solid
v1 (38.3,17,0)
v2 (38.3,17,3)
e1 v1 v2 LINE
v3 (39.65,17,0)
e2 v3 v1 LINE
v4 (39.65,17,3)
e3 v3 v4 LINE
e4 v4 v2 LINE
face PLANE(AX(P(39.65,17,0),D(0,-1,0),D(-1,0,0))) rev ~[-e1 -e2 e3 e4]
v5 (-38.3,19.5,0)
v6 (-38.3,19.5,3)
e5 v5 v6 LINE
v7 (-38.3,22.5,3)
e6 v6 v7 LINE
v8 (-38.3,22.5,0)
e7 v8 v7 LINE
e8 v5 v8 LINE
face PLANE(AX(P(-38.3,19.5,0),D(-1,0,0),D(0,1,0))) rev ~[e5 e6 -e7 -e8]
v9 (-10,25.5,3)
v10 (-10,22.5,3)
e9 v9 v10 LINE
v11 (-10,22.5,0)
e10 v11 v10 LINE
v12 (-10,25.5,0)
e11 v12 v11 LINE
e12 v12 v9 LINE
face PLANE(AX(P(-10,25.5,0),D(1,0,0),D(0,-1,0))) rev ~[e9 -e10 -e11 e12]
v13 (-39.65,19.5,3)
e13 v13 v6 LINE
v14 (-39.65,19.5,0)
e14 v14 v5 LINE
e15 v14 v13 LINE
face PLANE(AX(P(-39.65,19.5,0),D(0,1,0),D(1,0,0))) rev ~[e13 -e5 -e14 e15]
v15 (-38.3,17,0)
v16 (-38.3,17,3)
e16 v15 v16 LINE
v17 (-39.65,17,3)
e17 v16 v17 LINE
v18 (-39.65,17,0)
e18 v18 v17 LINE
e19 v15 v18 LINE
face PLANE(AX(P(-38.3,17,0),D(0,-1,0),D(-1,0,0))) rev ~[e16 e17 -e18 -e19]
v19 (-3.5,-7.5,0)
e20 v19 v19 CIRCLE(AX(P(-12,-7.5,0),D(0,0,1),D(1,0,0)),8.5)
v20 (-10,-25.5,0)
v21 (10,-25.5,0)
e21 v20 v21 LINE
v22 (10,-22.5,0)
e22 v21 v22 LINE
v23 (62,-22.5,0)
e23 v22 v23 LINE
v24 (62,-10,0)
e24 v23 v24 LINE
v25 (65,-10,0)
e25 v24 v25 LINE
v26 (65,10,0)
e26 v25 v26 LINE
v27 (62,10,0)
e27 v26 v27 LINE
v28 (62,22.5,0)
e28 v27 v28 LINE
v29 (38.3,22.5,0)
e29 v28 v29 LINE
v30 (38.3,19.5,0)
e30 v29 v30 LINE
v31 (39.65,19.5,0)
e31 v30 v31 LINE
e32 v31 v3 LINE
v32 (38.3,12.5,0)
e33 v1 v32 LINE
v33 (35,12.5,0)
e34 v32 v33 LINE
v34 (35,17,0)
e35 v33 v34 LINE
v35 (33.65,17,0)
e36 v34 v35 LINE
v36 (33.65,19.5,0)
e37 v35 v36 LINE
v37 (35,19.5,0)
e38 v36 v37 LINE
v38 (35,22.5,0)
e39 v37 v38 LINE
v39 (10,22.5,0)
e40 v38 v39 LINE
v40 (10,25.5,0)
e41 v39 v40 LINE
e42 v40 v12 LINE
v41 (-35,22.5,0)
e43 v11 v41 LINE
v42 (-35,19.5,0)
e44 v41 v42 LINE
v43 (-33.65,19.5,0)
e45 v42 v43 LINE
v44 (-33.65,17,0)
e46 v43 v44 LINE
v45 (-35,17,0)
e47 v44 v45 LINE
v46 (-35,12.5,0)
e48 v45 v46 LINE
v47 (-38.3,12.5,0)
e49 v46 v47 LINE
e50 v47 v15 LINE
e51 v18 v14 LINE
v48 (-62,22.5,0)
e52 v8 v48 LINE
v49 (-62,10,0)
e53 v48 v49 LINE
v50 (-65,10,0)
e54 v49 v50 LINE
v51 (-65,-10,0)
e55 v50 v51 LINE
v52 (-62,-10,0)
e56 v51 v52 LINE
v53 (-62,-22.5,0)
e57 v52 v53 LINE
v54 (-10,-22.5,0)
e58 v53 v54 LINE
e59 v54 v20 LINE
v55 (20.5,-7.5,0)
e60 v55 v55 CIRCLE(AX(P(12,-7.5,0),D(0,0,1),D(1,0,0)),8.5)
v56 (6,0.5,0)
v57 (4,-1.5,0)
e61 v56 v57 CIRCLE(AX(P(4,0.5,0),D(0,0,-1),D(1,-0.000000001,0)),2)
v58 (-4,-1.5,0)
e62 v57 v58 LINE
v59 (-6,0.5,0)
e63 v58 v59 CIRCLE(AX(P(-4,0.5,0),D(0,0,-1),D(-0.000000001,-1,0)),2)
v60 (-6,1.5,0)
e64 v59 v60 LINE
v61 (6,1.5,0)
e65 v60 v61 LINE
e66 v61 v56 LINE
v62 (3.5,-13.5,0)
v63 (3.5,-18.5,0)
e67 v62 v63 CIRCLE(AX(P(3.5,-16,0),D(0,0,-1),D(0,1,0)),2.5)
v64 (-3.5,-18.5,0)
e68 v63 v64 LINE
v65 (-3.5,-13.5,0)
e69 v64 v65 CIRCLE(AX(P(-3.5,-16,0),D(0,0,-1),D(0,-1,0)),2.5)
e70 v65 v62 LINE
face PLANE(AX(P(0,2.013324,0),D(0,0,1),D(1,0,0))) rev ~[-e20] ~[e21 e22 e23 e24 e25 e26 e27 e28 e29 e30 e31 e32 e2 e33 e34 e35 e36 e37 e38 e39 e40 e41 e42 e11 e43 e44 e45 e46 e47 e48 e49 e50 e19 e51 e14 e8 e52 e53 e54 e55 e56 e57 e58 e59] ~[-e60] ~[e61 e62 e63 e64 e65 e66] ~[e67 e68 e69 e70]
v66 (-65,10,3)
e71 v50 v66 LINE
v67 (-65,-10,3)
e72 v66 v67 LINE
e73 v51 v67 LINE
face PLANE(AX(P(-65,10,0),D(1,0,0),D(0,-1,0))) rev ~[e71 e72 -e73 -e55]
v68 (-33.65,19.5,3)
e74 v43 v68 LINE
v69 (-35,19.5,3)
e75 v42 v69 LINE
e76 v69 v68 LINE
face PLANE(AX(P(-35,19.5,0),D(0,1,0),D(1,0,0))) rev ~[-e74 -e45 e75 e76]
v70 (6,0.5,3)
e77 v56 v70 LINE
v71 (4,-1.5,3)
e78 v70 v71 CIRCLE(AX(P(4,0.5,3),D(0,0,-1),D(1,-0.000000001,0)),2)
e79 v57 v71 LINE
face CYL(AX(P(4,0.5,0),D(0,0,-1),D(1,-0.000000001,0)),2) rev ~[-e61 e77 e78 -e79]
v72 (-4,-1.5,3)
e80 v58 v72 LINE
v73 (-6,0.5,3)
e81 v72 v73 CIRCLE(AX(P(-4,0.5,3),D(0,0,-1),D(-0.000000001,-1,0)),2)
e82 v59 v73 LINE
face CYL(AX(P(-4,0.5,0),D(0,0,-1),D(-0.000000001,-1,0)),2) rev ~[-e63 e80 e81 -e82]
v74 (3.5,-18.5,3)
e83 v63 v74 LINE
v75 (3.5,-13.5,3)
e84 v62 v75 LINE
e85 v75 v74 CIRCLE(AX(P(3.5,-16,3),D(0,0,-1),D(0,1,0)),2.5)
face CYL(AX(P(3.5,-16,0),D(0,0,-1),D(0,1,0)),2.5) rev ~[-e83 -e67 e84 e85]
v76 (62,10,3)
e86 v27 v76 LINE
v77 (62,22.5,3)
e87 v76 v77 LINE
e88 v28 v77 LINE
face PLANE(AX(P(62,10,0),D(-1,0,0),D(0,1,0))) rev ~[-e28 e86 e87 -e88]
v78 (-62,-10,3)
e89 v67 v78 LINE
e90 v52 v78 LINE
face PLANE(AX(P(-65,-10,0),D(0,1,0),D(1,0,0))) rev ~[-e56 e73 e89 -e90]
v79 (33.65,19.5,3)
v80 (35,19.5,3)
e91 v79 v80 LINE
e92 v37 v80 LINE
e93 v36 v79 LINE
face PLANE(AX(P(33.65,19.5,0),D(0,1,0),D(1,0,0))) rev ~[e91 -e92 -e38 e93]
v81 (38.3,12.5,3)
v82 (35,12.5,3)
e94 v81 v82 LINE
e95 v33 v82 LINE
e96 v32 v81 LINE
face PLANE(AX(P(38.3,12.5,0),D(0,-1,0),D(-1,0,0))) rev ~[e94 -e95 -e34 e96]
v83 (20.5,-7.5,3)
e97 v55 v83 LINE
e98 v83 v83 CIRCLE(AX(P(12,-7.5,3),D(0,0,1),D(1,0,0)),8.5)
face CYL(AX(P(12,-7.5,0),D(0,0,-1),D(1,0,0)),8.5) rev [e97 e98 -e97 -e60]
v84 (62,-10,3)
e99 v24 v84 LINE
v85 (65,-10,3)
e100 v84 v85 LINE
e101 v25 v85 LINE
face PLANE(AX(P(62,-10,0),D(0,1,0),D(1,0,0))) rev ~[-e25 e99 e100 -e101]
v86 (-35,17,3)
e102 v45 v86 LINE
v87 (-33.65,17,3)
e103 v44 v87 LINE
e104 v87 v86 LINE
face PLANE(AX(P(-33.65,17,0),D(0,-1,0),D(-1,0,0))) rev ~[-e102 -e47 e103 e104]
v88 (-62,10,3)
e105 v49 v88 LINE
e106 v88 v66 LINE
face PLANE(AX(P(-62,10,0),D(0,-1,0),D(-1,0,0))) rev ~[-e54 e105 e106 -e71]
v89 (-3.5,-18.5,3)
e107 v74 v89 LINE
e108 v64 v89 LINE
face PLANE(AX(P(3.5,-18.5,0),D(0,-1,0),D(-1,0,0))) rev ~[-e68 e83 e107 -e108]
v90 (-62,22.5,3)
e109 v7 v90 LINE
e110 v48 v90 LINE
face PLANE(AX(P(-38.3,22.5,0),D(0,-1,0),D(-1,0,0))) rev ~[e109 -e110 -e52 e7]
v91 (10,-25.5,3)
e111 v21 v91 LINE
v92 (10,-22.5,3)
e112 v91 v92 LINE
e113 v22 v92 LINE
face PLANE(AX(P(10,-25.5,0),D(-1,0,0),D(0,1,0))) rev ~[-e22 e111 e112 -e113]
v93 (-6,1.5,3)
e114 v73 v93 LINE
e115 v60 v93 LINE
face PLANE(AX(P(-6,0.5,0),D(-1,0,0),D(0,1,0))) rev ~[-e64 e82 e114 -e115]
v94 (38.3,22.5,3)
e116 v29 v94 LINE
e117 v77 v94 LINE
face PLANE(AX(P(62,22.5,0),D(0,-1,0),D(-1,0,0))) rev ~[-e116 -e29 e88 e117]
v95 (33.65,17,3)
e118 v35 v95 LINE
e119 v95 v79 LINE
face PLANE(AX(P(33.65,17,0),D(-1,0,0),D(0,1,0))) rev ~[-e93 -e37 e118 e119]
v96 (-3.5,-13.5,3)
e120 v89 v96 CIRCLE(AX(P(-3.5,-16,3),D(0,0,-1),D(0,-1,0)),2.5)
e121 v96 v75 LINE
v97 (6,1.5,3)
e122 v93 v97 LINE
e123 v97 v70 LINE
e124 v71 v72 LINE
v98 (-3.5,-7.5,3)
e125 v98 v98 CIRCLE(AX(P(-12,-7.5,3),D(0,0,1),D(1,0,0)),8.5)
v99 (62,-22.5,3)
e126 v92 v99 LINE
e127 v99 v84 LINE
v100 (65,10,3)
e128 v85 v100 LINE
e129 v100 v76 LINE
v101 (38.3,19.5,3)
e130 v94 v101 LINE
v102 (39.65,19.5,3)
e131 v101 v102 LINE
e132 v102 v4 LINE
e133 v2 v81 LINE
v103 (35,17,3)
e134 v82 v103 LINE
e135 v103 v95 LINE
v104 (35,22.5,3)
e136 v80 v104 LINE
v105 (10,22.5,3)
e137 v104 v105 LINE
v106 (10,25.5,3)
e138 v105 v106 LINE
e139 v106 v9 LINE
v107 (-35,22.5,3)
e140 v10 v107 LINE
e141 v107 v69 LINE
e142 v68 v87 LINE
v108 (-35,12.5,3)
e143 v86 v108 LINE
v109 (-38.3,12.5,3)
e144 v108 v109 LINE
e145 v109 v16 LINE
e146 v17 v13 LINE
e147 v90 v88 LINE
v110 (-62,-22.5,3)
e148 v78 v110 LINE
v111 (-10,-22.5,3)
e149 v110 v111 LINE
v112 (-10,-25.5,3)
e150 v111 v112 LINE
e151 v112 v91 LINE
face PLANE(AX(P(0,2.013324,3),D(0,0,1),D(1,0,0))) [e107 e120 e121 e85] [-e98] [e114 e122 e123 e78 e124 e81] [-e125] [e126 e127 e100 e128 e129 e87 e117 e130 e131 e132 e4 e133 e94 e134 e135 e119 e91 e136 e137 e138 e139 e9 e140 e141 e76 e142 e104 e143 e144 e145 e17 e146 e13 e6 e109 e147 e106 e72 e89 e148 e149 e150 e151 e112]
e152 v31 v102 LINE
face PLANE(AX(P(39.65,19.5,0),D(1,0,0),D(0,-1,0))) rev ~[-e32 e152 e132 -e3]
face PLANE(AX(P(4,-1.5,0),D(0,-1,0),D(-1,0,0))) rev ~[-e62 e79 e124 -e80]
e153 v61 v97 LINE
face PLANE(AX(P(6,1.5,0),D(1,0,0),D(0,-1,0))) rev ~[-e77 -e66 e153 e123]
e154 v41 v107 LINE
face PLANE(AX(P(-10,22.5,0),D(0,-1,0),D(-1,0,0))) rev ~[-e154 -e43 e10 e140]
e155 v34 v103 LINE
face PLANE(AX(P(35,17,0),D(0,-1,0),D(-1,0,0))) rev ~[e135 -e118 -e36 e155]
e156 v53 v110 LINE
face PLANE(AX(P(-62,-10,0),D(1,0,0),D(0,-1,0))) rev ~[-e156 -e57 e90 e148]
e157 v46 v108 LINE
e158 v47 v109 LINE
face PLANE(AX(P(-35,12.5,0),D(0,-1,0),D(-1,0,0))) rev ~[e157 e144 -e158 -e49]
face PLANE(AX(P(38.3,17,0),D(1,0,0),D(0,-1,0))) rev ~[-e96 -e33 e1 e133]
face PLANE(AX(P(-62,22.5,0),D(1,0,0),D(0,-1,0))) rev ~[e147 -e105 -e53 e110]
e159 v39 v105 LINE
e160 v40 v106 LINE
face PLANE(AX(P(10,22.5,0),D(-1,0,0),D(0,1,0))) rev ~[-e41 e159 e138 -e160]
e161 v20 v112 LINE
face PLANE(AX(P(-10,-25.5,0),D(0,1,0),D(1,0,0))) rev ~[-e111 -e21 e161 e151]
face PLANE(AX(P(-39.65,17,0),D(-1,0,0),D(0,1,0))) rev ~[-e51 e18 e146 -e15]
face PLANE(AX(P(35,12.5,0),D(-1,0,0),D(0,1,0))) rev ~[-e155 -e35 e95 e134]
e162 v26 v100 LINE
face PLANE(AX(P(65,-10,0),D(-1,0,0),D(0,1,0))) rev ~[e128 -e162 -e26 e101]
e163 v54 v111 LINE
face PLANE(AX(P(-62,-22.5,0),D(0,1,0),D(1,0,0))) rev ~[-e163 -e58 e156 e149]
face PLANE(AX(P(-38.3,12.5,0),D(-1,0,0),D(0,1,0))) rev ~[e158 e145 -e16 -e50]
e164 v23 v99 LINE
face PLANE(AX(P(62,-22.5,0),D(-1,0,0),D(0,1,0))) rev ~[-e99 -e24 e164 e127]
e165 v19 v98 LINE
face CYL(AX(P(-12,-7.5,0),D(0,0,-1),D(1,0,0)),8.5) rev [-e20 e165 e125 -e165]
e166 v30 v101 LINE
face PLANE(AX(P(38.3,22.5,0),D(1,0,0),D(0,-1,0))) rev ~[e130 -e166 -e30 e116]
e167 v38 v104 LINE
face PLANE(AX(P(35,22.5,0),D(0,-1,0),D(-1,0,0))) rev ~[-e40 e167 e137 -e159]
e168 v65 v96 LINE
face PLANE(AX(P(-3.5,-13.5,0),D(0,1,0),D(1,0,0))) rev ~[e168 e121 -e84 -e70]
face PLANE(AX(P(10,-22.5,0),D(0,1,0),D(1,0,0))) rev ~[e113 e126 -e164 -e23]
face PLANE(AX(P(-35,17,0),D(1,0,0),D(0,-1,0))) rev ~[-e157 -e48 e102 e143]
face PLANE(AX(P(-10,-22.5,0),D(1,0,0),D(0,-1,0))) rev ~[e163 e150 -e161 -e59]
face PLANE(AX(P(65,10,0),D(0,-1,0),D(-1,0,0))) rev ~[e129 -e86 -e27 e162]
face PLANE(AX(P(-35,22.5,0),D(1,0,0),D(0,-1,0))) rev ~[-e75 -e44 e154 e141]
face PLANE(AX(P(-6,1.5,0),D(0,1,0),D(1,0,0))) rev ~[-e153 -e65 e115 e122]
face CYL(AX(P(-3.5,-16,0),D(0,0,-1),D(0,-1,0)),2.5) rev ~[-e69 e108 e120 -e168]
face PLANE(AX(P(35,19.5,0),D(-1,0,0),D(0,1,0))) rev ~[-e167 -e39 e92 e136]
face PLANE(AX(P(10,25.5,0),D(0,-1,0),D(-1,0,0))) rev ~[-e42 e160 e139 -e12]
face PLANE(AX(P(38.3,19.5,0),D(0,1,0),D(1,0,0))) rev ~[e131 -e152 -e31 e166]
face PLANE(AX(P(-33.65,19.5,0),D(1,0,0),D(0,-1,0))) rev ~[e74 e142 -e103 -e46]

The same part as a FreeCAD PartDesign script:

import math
import FreeCAD as App
import Part
import Sketcher
from FreeCAD import Vector
Q = App.Units.Quantity


def add_polygon(sketch, points):
    """Adds a closed chain of lines whose ends are joined by coincident constraints."""
    first, n = sketch.GeometryCount, len(points)
    for a, b in zip(points, points[1:] + points[:1]):
        sketch.addGeometry(Part.LineSegment(App.Vector(*a, 0), App.Vector(*b, 0)), False)
    for i in range(n):
        sketch.addConstraint(Sketcher.Constraint("Coincident", first + i, 2, first + (i + 1) % n, 1))

doc = App.newDocument("Part")
body = doc.addObject("PartDesign::Body", "Body")

# Sketch on XY plane
sketch1 = body.newObject("Sketcher::SketchObject", "Sketch")
sketch1.AttachmentSupport = (doc.getObject("XY_Plane"), [""])
sketch1.MapMode = "FlatFace"
add_polygon(sketch1, [(10, -22.5), (62, -22.5), (62, -10), (65, -10), (65, 10), (62, 10), (62, 22.5), (38.3, 22.5), (38.3, 19.5), (39.65, 19.5), (39.65, 17), (38.3, 17), (38.3, 12.5), (35, 12.5), (35, 17), (33.65, 17), (33.65, 19.5), (35, 19.5), (35, 22.5), (10, 22.5), (10, 25.5), (-10, 25.5), (-10, 22.5), (-35, 22.5), (-35, 19.5), (-33.65, 19.5), (-33.65, 17), (-35, 17), (-35, 12.5), (-38.3, 12.5), (-38.3, 17), (-39.65, 17), (-39.65, 19.5), (-38.3, 19.5), (-38.3, 22.5), (-62, 22.5), (-62, 10), (-65, 10), (-65, -10), (-62, -10), (-62, -22.5), (-10, -22.5), (-10, -25.5), (10, -25.5)])  # lines 0-43
sketch1.addGeometry(Part.LineSegment(Vector(3.5, -18.5, 0), Vector(-3.5, -18.5, 0)), False)  # 44
sketch1.addGeometry(Part.ArcOfCircle(Part.Circle(Vector(-3.5, -16, 0), Vector(0, 0, 1), 2.5), math.radians(90), math.radians(270)), False)  # 45
sketch1.addGeometry(Part.LineSegment(Vector(-3.5, -13.5, 0), Vector(3.5, -13.5, 0)), False)  # 46
sketch1.addGeometry(Part.ArcOfCircle(Part.Circle(Vector(3.5, -16, 0), Vector(0, 0, 1), 2.5), math.radians(-90), math.radians(90)), False)  # 47
sketch1.addGeometry(Part.Circle(Vector(-12, -7.5, 0), Vector(0, 0, 1), 8.5), False)  # 48
sketch1.addGeometry(Part.Circle(Vector(12, -7.5, 0), Vector(0, 0, 1), 8.5), False)  # 49
sketch1.addGeometry(Part.LineSegment(Vector(6, 1.5, 0), Vector(6, 0.5, 0)), False)  # 50
sketch1.addGeometry(Part.ArcOfCircle(Part.Circle(Vector(4, 0.5, 0), Vector(0, 0, 1), 2), math.radians(-90), math.radians(0)), False)  # 51
sketch1.addGeometry(Part.LineSegment(Vector(4, -1.5, 0), Vector(-4, -1.5, 0)), False)  # 52
sketch1.addGeometry(Part.ArcOfCircle(Part.Circle(Vector(-4, 0.5, 0), Vector(0, 0, 1), 2), math.radians(-180), math.radians(-90)), False)  # 53
sketch1.addGeometry(Part.LineSegment(Vector(-6, 0.5, 0), Vector(-6, 1.5, 0)), False)  # 54
sketch1.addGeometry(Part.LineSegment(Vector(-6, 1.5, 0), Vector(6, 1.5, 0)), False)  # 55
sketch1.addConstraint([
    Sketcher.Constraint("Tangent", 44, 2, 45, 2),
    Sketcher.Constraint("Tangent", 45, 1, 46, 1),
    Sketcher.Constraint("Tangent", 46, 2, 47, 2),
    Sketcher.Constraint("Tangent", 47, 1, 44, 1),
    Sketcher.Constraint("Tangent", 50, 2, 51, 2),
    Sketcher.Constraint("Tangent", 51, 1, 52, 1),
    Sketcher.Constraint("Tangent", 52, 2, 53, 2),
    Sketcher.Constraint("Tangent", 53, 1, 54, 1),
    Sketcher.Constraint("Coincident", 54, 2, 55, 1),
    Sketcher.Constraint("Coincident", 55, 2, 50, 1),
    Sketcher.Constraint("Horizontal", 0),
    Sketcher.Constraint("Vertical", 1),
    Sketcher.Constraint("Horizontal", 2),
    Sketcher.Constraint("Vertical", 3),
    Sketcher.Constraint("Horizontal", 4),
    Sketcher.Constraint("Vertical", 5),
    Sketcher.Constraint("Horizontal", 6),
    Sketcher.Constraint("Vertical", 7),
    Sketcher.Constraint("Horizontal", 8),
    Sketcher.Constraint("Vertical", 9),
    Sketcher.Constraint("Horizontal", 10),
    Sketcher.Constraint("Vertical", 11),
    Sketcher.Constraint("Horizontal", 12),
    Sketcher.Constraint("Vertical", 13),
    Sketcher.Constraint("Horizontal", 14),
    Sketcher.Constraint("Vertical", 15),
    Sketcher.Constraint("Horizontal", 16),
    Sketcher.Constraint("Vertical", 17),
    Sketcher.Constraint("Horizontal", 18),
    Sketcher.Constraint("Vertical", 19),
    Sketcher.Constraint("Horizontal", 20),
    Sketcher.Constraint("Vertical", 21),
    Sketcher.Constraint("Horizontal", 22),
    Sketcher.Constraint("Vertical", 23),
    Sketcher.Constraint("Horizontal", 24),
    Sketcher.Constraint("Vertical", 25),
    Sketcher.Constraint("Horizontal", 26),
    Sketcher.Constraint("Vertical", 27),
    Sketcher.Constraint("Horizontal", 28),
    Sketcher.Constraint("Vertical", 29),
    Sketcher.Constraint("Horizontal", 30),
    Sketcher.Constraint("Vertical", 31),
    Sketcher.Constraint("Horizontal", 32),
    Sketcher.Constraint("Vertical", 33),
    Sketcher.Constraint("Horizontal", 34),
    Sketcher.Constraint("Vertical", 35),
    Sketcher.Constraint("Horizontal", 36),
    Sketcher.Constraint("Vertical", 37),
    Sketcher.Constraint("Horizontal", 38),
    Sketcher.Constraint("Vertical", 39),
    Sketcher.Constraint("Horizontal", 40),
    Sketcher.Constraint("Vertical", 41),
    Sketcher.Constraint("Horizontal", 42),
    Sketcher.Constraint("Vertical", 43),
    Sketcher.Constraint("Horizontal", 44),
    Sketcher.Constraint("Horizontal", 46),
    Sketcher.Constraint("Vertical", 50),
    Sketcher.Constraint("Horizontal", 52),
    Sketcher.Constraint("Vertical", 54),
    Sketcher.Constraint("Horizontal", 55),
    Sketcher.Constraint("Equal", 48, 49),
    Sketcher.Constraint("Equal", 51, 53),
    Sketcher.Constraint("Symmetric", 0, 2, 34, 2, -1, 1),
    Sketcher.Constraint("Symmetric", 2, 2, 36, 2, -1, 1),
    Sketcher.Constraint("Symmetric", 4, 2, 38, 2, -1, 1),
    Sketcher.Constraint("Symmetric", 18, 2, 40, 2, -1, 1),
    Sketcher.Constraint("Symmetric", 20, 2, 42, 2, -1, 1),
    Sketcher.Constraint("Symmetric", 48, 3, 49, 3, -2),
    Sketcher.Constraint("Symmetric", 18, 2, 21, 2, -2),
    Sketcher.Constraint("Symmetric", 16, 2, 23, 2, -2),
    Sketcher.Constraint("Symmetric", 14, 2, 25, 2, -2),
    Sketcher.Constraint("Symmetric", 12, 2, 27, 2, -2),
    Sketcher.Constraint("Symmetric", 10, 2, 29, 2, -2),
    Sketcher.Constraint("Symmetric", 8, 2, 31, 2, -2),
    Sketcher.Constraint("Symmetric", 6, 2, 33, 2, -2),
    Sketcher.Constraint("Symmetric", 4, 2, 35, 2, -2),
    Sketcher.Constraint("Horizontal", 10, 2, 13, 2),
    Sketcher.Constraint("Horizontal", 8, 2, 15, 2),
    Sketcher.Constraint("Horizontal", 6, 2, 17, 2),
    Sketcher.Constraint("Vertical", 7, 2, 10, 2),
    Sketcher.Constraint("Vertical", 13, 2, 16, 2),
    Sketcher.Constraint("Equal", 10, 14),
    Sketcher.Constraint("Equal", 42, 3),
    Sketcher.Constraint("Equal", 38, 7),
    Sketcher.Constraint("Equal", 17, 19),
    Sketcher.Constraint("Diameter", 48, Q("17 mm")),
    Sketcher.Constraint("Radius", 51, Q("2 mm")),
    Sketcher.Constraint("Radius", 45, Q("2.5 mm")),
    Sketcher.Constraint("DistanceX", 0, 1, 0, 2, Q("52 mm")),
    Sketcher.Constraint("DistanceX", 2, 1, 2, 2, Q("3 mm")),
    Sketcher.Constraint("DistanceX", 18, 2, 18, 1, Q("25 mm")),
    Sketcher.Constraint("DistanceX", 20, 2, 20, 1, Q("20 mm")),
    Sketcher.Constraint("DistanceX", 44, 2, 44, 1, Q("7 mm")),
    Sketcher.Constraint("DistanceX", 52, 2, 52, 1, Q("8 mm")),
    Sketcher.Constraint("DistanceY", 50, 2, 50, 1, Q("1 mm")),
    Sketcher.Constraint("DistanceX", 6, 2, 6, 1, Q("23.7 mm")),
    Sketcher.Constraint("DistanceY", 1, 1, 1, 2, Q("12.5 mm")),
    Sketcher.Constraint("DistanceY", 9, 2, 9, 1, Q("2.5 mm")),
    Sketcher.Constraint("DistanceY", 11, 2, 11, 1, Q("4.5 mm")),
    Sketcher.Constraint("DistanceY", 45, 3, -1, 1, Q("16 mm")),
    Sketcher.Constraint("DistanceX", 48, 3, -1, 1, Q("12 mm")),
    Sketcher.Constraint("DistanceX", -1, 1, 51, 3, Q("4 mm")),
    Sketcher.Constraint("DistanceY", 49, 3, 51, 3, Q("8 mm")),
    Sketcher.Constraint("DistanceY", 0, 2, 49, 3, Q("15 mm")),
    Sketcher.Constraint("DistanceX", 14, 2, 9, 2, Q("6 mm")),
    Sketcher.Constraint("DistanceX", 45, 3, -1, 1, Q("3.5 mm")),
])
pad1 = body.newObject("PartDesign::Pad", "Pad")
pad1.Profile = sketch1
pad1.Length = 3

doc.recompute()
